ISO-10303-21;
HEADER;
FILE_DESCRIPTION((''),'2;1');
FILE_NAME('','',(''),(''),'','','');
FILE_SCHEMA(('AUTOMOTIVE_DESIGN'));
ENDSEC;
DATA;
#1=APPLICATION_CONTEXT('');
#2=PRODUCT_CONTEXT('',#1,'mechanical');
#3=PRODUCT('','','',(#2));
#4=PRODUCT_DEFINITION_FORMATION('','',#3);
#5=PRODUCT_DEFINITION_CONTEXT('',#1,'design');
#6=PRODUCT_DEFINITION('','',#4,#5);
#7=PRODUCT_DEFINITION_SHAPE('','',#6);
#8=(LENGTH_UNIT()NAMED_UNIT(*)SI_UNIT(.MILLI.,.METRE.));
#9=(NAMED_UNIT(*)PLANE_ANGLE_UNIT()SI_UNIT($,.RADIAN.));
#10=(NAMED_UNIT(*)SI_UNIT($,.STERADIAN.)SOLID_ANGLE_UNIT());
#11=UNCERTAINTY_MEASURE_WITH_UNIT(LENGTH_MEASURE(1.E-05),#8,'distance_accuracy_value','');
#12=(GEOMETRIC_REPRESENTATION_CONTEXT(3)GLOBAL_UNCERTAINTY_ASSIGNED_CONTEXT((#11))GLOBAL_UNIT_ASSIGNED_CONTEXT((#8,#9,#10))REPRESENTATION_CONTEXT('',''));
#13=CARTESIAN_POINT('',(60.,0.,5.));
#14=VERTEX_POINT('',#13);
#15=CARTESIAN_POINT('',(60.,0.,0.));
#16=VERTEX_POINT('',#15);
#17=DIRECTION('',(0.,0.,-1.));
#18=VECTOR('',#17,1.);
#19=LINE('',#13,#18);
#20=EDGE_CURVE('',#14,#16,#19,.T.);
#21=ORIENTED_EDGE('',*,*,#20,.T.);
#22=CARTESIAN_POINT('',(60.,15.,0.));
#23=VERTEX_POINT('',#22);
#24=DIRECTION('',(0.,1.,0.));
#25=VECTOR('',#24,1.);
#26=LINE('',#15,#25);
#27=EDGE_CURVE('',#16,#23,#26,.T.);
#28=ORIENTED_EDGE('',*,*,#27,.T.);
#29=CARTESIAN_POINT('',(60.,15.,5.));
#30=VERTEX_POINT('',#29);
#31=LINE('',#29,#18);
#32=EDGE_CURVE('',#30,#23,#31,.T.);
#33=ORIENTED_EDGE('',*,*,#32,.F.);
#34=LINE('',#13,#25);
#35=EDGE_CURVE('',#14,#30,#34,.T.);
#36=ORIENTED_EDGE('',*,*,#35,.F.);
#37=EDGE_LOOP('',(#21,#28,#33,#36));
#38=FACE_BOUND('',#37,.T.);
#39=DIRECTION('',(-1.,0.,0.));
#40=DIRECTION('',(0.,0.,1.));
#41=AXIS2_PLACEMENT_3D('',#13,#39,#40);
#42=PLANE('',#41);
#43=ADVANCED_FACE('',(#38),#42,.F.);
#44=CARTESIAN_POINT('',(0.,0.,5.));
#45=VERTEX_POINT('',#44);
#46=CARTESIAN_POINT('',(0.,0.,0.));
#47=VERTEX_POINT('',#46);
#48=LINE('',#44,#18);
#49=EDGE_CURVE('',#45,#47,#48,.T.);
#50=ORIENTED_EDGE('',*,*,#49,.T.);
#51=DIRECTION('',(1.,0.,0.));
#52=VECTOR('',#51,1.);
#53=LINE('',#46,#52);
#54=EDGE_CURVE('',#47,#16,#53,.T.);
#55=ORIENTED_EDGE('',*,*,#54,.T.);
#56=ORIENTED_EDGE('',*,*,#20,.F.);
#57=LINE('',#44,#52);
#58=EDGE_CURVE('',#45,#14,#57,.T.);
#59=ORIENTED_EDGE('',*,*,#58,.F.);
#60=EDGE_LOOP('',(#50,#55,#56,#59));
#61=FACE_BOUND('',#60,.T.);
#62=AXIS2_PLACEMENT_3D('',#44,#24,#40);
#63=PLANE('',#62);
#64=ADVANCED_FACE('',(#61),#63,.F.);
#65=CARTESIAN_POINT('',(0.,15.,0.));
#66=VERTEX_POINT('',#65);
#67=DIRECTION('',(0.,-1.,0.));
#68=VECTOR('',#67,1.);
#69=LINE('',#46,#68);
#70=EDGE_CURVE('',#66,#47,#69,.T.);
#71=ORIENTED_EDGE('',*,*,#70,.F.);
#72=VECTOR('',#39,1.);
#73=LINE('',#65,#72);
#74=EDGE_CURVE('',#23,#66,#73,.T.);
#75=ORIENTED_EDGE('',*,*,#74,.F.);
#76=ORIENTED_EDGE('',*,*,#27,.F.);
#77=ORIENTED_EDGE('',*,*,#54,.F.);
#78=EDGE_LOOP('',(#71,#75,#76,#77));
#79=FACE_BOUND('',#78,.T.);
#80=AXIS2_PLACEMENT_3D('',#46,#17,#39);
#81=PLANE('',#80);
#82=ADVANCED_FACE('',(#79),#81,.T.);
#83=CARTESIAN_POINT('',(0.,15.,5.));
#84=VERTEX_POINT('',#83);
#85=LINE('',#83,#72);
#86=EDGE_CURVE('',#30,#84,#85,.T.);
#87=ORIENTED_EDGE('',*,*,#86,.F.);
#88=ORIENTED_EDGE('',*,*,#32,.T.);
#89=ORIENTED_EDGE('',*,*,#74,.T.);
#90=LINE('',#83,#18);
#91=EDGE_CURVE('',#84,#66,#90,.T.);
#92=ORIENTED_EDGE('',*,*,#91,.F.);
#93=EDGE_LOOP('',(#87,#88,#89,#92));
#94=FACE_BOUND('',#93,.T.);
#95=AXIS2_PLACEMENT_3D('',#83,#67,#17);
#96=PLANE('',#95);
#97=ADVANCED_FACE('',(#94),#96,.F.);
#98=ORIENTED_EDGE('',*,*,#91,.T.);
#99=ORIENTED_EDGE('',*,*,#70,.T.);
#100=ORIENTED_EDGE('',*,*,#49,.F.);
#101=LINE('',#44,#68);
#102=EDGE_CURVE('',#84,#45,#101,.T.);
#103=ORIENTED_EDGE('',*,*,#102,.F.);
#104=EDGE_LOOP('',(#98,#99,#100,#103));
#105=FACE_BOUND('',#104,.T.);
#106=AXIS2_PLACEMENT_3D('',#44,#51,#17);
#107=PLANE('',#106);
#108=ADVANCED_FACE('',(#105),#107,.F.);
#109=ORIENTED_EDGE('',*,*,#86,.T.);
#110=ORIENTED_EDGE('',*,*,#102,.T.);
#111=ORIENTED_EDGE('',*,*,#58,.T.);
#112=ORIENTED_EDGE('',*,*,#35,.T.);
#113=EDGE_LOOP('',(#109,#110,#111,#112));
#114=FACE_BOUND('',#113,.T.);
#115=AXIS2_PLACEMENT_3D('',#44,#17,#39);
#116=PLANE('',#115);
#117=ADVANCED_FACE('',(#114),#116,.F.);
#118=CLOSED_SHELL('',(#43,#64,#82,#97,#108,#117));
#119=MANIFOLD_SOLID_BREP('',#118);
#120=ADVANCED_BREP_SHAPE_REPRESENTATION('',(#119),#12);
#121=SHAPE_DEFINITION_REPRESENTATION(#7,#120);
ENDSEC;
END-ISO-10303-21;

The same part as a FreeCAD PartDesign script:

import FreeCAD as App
import Part
import Sketcher

V = App.Vector
Q = App.Units.Quantity


def add_polygon(sketch, points):
    """Adds a closed chain of lines whose ends are joined by coincident constraints."""
    first, n = sketch.GeometryCount, len(points)
    for a, b in zip(points, points[1:] + points[:1]):
        sketch.addGeometry(Part.LineSegment(App.Vector(*a, 0), App.Vector(*b, 0)), False)
    for i in range(n):
        sketch.addConstraint(Sketcher.Constraint("Coincident", first + i, 2, first + (i + 1) % n, 1))

doc = App.newDocument("Part")
body = doc.addObject("PartDesign::Body", "Body")

sketch1 = doc.addObject("Sketcher::SketchObject", "Sketch")
body.addObject(sketch1)
sketch1.AttachmentSupport = (doc.XY_Plane, [""])
sketch1.MapMode = "FlatFace"
add_polygon(sketch1, [(0, 15), (0, 0), (60, 0), (60, 15)])
sketch1.addConstraint(Sketcher.Constraint("Vertical", 0))
sketch1.addConstraint(Sketcher.Constraint("Horizontal", 1))
sketch1.addConstraint(Sketcher.Constraint("Vertical", 2))
sketch1.addConstraint(Sketcher.Constraint("Horizontal", 3))
sketch1.addConstraint(Sketcher.Constraint("Coincident", 0, 2, -1, 1))
sketch1.addConstraint(Sketcher.Constraint("DistanceX", 1, 1, 1, 2, Q("60 mm")))
sketch1.addConstraint(Sketcher.Constraint("DistanceY", 0, 2, 0, 1, Q("15 mm")))
pad1 = doc.addObject("PartDesign::Pad", "Pad")
body.addObject(pad1)
pad1.Profile = sketch1
pad1.Length = 5

doc.recompute()
